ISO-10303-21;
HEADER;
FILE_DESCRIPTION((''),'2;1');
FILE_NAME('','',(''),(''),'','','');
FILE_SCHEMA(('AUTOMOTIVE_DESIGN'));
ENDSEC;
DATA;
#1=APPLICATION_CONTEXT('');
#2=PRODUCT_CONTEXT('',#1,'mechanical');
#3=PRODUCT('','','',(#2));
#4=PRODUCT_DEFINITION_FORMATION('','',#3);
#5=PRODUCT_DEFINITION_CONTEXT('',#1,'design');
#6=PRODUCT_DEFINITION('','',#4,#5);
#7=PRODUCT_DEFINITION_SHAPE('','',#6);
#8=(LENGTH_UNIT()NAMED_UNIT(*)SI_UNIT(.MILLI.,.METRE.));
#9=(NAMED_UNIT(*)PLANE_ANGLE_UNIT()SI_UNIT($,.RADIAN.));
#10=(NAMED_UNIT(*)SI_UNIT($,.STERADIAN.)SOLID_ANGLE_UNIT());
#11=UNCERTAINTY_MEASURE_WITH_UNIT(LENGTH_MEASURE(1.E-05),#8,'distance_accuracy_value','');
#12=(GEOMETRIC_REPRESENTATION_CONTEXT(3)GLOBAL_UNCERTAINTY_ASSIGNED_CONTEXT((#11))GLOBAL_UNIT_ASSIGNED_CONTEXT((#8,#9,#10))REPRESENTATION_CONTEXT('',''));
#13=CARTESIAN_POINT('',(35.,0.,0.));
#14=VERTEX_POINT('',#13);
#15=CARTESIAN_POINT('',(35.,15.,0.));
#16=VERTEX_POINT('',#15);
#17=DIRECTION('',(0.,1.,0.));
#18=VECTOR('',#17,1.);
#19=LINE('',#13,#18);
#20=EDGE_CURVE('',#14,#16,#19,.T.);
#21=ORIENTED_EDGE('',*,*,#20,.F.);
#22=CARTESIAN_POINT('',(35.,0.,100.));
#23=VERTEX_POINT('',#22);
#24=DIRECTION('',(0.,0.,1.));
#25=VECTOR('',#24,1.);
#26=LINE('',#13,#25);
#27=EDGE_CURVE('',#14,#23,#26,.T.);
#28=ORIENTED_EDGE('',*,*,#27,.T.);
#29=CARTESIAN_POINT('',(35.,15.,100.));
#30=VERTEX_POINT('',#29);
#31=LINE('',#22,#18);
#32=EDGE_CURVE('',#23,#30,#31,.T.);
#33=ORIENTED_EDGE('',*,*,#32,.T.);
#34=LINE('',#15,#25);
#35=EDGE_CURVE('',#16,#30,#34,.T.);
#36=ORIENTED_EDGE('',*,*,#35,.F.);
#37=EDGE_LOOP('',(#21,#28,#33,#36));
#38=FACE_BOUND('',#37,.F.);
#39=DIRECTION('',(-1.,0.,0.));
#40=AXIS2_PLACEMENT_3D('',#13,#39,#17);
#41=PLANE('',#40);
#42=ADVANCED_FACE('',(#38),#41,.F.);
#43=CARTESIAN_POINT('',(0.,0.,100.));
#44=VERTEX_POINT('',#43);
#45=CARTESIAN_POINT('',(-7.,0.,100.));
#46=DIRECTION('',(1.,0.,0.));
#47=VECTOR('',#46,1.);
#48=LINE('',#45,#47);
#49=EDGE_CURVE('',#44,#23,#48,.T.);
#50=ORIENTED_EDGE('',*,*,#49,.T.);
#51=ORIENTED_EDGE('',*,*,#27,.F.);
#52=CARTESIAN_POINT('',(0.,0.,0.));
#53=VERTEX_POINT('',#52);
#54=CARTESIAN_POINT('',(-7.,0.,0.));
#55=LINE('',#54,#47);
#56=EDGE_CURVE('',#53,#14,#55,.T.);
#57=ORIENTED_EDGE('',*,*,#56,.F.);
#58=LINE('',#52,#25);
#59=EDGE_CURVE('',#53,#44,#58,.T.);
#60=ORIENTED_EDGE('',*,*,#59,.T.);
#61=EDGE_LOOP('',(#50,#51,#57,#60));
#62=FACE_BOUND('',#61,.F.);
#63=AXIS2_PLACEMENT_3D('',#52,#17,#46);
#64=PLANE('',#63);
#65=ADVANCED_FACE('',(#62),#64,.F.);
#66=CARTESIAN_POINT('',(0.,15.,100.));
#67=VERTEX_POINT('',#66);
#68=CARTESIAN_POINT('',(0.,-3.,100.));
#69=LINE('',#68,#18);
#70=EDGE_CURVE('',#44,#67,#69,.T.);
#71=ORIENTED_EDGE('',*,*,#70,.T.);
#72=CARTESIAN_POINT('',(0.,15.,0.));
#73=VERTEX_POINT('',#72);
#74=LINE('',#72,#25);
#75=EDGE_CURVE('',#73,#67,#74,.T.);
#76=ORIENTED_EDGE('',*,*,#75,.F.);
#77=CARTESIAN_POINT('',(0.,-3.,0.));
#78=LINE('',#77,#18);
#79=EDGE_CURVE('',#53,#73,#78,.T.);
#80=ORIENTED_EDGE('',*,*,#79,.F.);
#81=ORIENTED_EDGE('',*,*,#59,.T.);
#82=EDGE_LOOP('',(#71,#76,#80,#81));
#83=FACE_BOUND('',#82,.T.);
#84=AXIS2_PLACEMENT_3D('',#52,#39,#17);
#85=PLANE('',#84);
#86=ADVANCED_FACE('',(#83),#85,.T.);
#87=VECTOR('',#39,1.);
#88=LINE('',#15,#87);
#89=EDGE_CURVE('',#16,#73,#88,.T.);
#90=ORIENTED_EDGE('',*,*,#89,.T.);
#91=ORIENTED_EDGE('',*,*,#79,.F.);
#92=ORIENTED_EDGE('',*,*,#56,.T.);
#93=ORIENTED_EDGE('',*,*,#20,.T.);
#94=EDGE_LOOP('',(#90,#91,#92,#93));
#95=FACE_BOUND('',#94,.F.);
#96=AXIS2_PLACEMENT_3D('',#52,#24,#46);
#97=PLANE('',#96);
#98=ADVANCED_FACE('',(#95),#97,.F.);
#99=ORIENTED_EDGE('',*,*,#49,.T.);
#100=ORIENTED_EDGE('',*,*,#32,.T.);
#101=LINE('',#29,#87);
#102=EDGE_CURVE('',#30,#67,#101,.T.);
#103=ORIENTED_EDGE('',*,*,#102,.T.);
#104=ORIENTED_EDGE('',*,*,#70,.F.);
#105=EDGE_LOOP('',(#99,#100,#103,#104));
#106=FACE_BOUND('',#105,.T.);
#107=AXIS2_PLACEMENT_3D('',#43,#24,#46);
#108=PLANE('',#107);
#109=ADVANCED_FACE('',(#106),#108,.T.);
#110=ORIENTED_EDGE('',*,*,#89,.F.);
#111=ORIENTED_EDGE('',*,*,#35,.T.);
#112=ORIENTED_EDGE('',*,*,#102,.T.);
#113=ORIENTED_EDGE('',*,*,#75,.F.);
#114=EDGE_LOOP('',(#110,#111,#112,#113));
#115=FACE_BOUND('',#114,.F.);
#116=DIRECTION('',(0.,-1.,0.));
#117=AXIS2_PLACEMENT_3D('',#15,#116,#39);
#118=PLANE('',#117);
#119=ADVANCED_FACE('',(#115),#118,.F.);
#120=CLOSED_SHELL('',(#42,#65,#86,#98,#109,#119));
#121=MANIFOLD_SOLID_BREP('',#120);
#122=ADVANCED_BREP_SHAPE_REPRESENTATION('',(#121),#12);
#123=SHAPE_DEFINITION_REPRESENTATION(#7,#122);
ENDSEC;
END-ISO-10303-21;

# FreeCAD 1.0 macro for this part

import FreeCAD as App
import Part
import Sketcher

V = App.Vector

doc = App.newDocument("Part")
body = doc.addObject("PartDesign::Body", "Body")

# Sketch on XY plane
sketch1 = doc.addObject("Sketcher::SketchObject", "Sketch")
body.addObject(sketch1)
sketch1.AttachmentSupport = (doc.XY_Plane, [""])
sketch1.MapMode = "FlatFace"
sketch1.addGeometry([
    Part.LineSegment(V(0, 15, 0), V(0, 0, 0)),
    Part.LineSegment(V(0, 0, 0), V(35, 0, 0)),
    Part.LineSegment(V(35, 0, 0), V(35, 15, 0)),
    Part.LineSegment(V(35, 15, 0), V(0, 15, 0)),
], False)
sketch1.addConstraint([
    Sketcher.Constraint("Coincident", 0, 2, 1, 1),
    Sketcher.Constraint("Coincident", 1, 2, 2, 1),
    Sketcher.Constraint("Coincident", 2, 2, 3, 1),
    Sketcher.Constraint("Coincident", 3, 2, 0, 1),
    Sketcher.Constraint("Vertical", 0),
    Sketcher.Constraint("Horizontal", 1),
    Sketcher.Constraint("Vertical", 2),
    Sketcher.Constraint("Horizontal", 3),
    Sketcher.Constraint("Coincident", 0, 2, -1, 1),
    Sketcher.Constraint("DistanceX", 1, 1, 1, 2, 35.0),
    Sketcher.Constraint("DistanceY", 0, 2, 0, 1, 15.0),
])
pad1 = doc.addObject("PartDesign::Pad", "Pad")
body.addObject(pad1)
pad1.Profile = sketch1
pad1.Length = 100

doc.recompute()
